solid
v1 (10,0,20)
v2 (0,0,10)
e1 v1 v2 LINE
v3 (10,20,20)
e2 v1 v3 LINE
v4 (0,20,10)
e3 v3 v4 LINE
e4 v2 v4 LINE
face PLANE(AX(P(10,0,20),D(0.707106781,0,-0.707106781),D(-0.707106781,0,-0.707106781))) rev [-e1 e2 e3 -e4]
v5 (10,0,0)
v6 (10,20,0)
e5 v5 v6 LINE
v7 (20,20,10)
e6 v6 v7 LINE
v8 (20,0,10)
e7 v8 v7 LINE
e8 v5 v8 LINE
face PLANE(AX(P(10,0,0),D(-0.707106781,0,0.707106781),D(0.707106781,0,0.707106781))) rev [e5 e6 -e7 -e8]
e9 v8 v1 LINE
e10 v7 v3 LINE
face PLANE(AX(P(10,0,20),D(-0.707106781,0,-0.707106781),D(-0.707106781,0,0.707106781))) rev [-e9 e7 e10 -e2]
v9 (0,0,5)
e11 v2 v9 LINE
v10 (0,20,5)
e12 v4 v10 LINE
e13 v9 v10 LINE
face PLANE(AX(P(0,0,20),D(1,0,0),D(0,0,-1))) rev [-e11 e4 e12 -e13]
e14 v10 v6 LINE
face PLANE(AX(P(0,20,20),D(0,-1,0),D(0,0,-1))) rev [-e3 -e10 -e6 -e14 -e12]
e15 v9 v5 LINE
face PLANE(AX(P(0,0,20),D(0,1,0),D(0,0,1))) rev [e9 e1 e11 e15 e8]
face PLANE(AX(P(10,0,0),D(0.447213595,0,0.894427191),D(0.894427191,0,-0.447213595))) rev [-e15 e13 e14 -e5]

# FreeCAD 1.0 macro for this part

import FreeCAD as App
import Part
import Sketcher

doc = App.newDocument("Part")
body = doc.addObject("PartDesign::Body", "Body")

sketch1 = body.newObject("Sketcher::SketchObject", "Sketch")
sketch1.AttachmentSupport = (doc.getObject("XY_Plane"), [""])
sketch1.MapMode = "FlatFace"
sketch1.addGeometry([
    Part.LineSegment(App.Vector(0, 20, 0), App.Vector(0, 0, 0)),
    Part.LineSegment(App.Vector(0, 0, 0), App.Vector(20, 0, 0)),
    Part.LineSegment(App.Vector(20, 0, 0), App.Vector(20, 20, 0)),
    Part.LineSegment(App.Vector(20, 20, 0), App.Vector(0, 20, 0)),
], False)
sketch1.addConstraint([
    Sketcher.Constraint("Coincident", 0, 2, 1, 1),
    Sketcher.Constraint("Coincident", 1, 2, 2, 1),
    Sketcher.Constraint("Coincident", 2, 2, 3, 1),
    Sketcher.Constraint("Coincident", 3, 2, 0, 1),
    Sketcher.Constraint("Vertical", 0),
    Sketcher.Constraint("Horizontal", 1),
    Sketcher.Constraint("Vertical", 2),
    Sketcher.Constraint("Horizontal", 3),
    Sketcher.Constraint("Coincident", 0, 2, -1, 1),
    Sketcher.Constraint("Equal", 3, 0),
    Sketcher.Constraint("DistanceX", 1, 1, 1, 2, 20.0),
])
pad1 = body.newObject("PartDesign::Pad", "Pad")
pad1.Profile = sketch1
pad1.Length = 20

sketch2 = body.newObject("Sketcher::SketchObject", "Sketch001")
sketch2.AttachmentSupport = (doc.getObject("XZ_Plane"), [""])
sketch2.MapMode = "FlatFace"
sketch2.AttachmentOffset = App.Placement(App.Vector(0, 0, -20), App.Rotation())
sketch2.addGeometry([
    Part.LineSegment(App.Vector(20, 0, 0), App.Vector(10, 0, 0)),
    Part.LineSegment(App.Vector(10, 0, 0), App.Vector(20, 10, 0)),
    Part.LineSegment(App.Vector(20, 10, 0), App.Vector(20, 0, 0)),
], False)
sketch2.addConstraint([
    Sketcher.Constraint("Coincident", 0, 2, 1, 1),
    Sketcher.Constraint("Coincident", 1, 2, 2, 1),
    Sketcher.Constraint("Coincident", 2, 2, 0, 1),
    Sketcher.Constraint("Horizontal", 0),
    Sketcher.Constraint("Vertical", 2),
    Sketcher.Constraint("PointOnObject", 0, 2, -1),
    Sketcher.Constraint("Equal", 0, 2),
    Sketcher.Constraint("DistanceX", 0, 2, 0, 1, 10.0),
    Sketcher.Constraint("DistanceX", -1, 1, 0, 2, 10.0),
])
pocket1 = body.newObject("PartDesign::Pocket", "Pocket")
pocket1.Profile = sketch2
pocket1.Length = 20
pocket1.Reversed = True

sketch3 = body.newObject("Sketcher::SketchObject", "Sketch002")
sketch3.AttachmentSupport = (doc.getObject("XZ_Plane"), [""])
sketch3.MapMode = "FlatFace"
sketch3.AttachmentOffset = App.Placement(App.Vector(0, 0, -20), App.Rotation())
sketch3.addGeometry([
    Part.LineSegment(App.Vector(10, 20, 0), App.Vector(20, 20, 0)),
    Part.LineSegment(App.Vector(20, 20, 0), App.Vector(20, 10, 0)),
    Part.LineSegment(App.Vector(20, 10, 0), App.Vector(10, 20, 0)),
], False)
sketch3.addConstraint([
    Sketcher.Constraint("Coincident", 0, 2, 1, 1),
    Sketcher.Constraint("Coincident", 1, 2, 2, 1),
    Sketcher.Constraint("Coincident", 2, 2, 0, 1),
    Sketcher.Constraint("Horizontal", 0),
    Sketcher.Constraint("Vertical", 1),
    Sketcher.Constraint("Equal", 0, 1),
    Sketcher.Constraint("DistanceX", 0, 1, 0, 2, 10.0),
    Sketcher.Constraint("DistanceX", -1, 1, 0, 2, 20.0),
    Sketcher.Constraint("DistanceY", -1, 1, 0, 2, 20.0),
])
pocket2 = body.newObject("PartDesign::Pocket", "Pocket001")
pocket2.Profile = sketch3
pocket2.Length = 20
pocket2.Reversed = True

sketch4 = body.newObject("Sketcher::SketchObject", "Sketch003")
sketch4.AttachmentSupport = (doc.getObject("XZ_Plane"), [""])
sketch4.MapMode = "FlatFace"
sketch4.AttachmentOffset = App.Placement(App.Vector(0, 0, -20), App.Rotation())
sketch4.addGeometry([
    Part.LineSegment(App.Vector(10, 20, 0), App.Vector(0, 10, 0)),
    Part.LineSegment(App.Vector(0, 10, 0), App.Vector(0, 20, 0)),
    Part.LineSegment(App.Vector(0, 20, 0), App.Vector(10, 20, 0)),
], False)
sketch4.addConstraint([
    Sketcher.Constraint("Coincident", 0, 2, 1, 1),
    Sketcher.Constraint("Coincident", 1, 2, 2, 1),
    Sketcher.Constraint("Coincident", 2, 2, 0, 1),
    Sketcher.Constraint("Vertical", 1),
    Sketcher.Constraint("Horizontal", 2),
    Sketcher.Constraint("PointOnObject", 0, 2, -2),
    Sketcher.Constraint("Equal", 2, 1),
    Sketcher.Constraint("DistanceX", 2, 1, 2, 2, 10.0),
    Sketcher.Constraint("DistanceY", -1, 1, 0, 2, 10.0),
])
pocket3 = body.newObject("PartDesign::Pocket", "Pocket002")
pocket3.Profile = sketch4
pocket3.Length = 20
pocket3.Reversed = True

sketch5 = body.newObject("Sketcher::SketchObject", "Sketch004")
sketch5.AttachmentSupport = (doc.getObject("XZ_Plane"), [""])
sketch5.MapMode = "FlatFace"
sketch5.AttachmentOffset = App.Placement(App.Vector(0, 0, -20), App.Rotation())
sketch5.addGeometry([
    Part.LineSegment(App.Vector(0, 5, 0), App.Vector(10, 0, 0)),
    Part.LineSegment(App.Vector(10, 0, 0), App.Vector(0, 0, 0)),
    Part.LineSegment(App.Vector(0, 0, 0), App.Vector(0, 5, 0)),
], False)
sketch5.addConstraint([
    Sketcher.Constraint("Coincident", 0, 2, 1, 1),
    Sketcher.Constraint("Coincident", 1, 2, 2, 1),
    Sketcher.Constraint("Coincident", 2, 2, 0, 1),
    Sketcher.Constraint("Horizontal", 1),
    Sketcher.Constraint("Vertical", 2),
    Sketcher.Constraint("Coincident", 1, 2, -1, 1),
    Sketcher.Constraint("DistanceX", 1, 2, 1, 1, 10.0),
    Sketcher.Constraint("DistanceY", 2, 1, 2, 2, 5.0),
])
pocket4 = body.newObject("PartDesign::Pocket", "Pocket003")
pocket4.Profile = sketch5
pocket4.Length = 20
pocket4.Reversed = True

doc.recompute()
